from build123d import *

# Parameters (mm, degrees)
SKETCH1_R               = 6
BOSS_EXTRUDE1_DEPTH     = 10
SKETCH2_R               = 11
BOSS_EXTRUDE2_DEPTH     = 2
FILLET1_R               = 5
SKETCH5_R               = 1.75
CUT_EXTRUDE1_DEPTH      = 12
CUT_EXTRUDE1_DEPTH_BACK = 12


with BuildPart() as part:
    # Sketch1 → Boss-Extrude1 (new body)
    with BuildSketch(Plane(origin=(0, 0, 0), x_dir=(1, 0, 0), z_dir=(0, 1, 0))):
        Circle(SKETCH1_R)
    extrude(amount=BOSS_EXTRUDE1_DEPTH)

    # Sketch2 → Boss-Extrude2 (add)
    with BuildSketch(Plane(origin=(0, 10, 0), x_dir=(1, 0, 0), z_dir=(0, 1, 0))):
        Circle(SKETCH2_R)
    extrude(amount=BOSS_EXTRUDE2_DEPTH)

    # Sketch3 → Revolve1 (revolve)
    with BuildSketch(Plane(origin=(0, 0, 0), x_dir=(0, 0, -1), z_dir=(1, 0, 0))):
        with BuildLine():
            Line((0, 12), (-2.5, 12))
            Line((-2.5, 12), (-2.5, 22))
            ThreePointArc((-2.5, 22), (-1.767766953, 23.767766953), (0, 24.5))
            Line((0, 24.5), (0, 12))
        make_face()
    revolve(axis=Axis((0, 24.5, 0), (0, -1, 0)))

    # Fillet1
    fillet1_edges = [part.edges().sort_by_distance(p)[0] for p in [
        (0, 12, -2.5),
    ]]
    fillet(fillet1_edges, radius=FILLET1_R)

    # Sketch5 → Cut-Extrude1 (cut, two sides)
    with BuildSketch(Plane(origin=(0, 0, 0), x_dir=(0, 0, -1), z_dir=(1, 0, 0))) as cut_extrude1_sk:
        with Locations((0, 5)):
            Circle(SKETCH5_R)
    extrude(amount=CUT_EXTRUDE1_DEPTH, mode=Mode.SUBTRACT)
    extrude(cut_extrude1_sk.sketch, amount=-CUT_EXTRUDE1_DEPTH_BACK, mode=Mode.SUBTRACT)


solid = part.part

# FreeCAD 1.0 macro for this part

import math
import FreeCAD as App
import Part
import Sketcher


def edges_at(feature, points):
    """Names of the edges that pass closest to the given points."""
    edges = feature.Shape.Edges
    near = lambda p: min(range(len(edges)), key=lambda i: edges[i].distToShape(Part.Vertex(*p))[0])
    return sorted({f"Edge{near(p) + 1}" for p in points})

doc = App.newDocument("Part")
body = doc.addObject("PartDesign::Body", "Body")

sketch1 = body.newObject("Sketcher::SketchObject", "Sketch")
sketch1.AttachmentSupport = (doc.getObject("XZ_Plane"), [""])
sketch1.MapMode = "FlatFace"
sketch1.addGeometry(Part.Circle(App.Vector(0, 0, 0), App.Vector(0, 0, 1), 6), False)
sketch1.addConstraint([
    Sketcher.Constraint("Coincident", 0, 3, -1, 1),
    Sketcher.Constraint("Diameter", 0, 12.0),
])
pad1 = body.newObject("PartDesign::Pad", "Pad")
pad1.Profile = sketch1
pad1.Length = 10
pad1.Reversed = True

sketch2 = body.newObject("Sketcher::SketchObject", "Sketch001")
sketch2.AttachmentSupport = (doc.getObject("XZ_Plane"), [""])
sketch2.MapMode = "FlatFace"
sketch2.AttachmentOffset = App.Placement(App.Vector(0, 0, -10), App.Rotation())
sketch2.addGeometry(Part.Circle(App.Vector(0, 0, 0), App.Vector(0, 0, 1), 11), False)
sketch2.addConstraint([
    Sketcher.Constraint("Coincident", 0, 3, -1, 1),
    Sketcher.Constraint("Diameter", 0, 22.0),
])
pad2 = body.newObject("PartDesign::Pad", "Pad001")
pad2.Profile = sketch2
pad2.Length = 2
pad2.Reversed = True

sketch3 = body.newObject("Sketcher::SketchObject", "Sketch002")
sketch3.AttachmentSupport = (doc.getObject("YZ_Plane"), [""])
sketch3.MapMode = "FlatFace"
sketch3.addGeometry([
    Part.LineSegment(App.Vector(12, 2.5, 0), App.Vector(12, 0, 0)),
    Part.LineSegment(App.Vector(12, 0, 0), App.Vector(24.5, 0, 0)),
    Part.ArcOfCircle(Part.Circle(App.Vector(22, 0, 0), App.Vector(0, 0, 1), 2.5), math.radians(0), math.radians(90)),
    Part.LineSegment(App.Vector(22, 2.5, 0), App.Vector(12, 2.5, 0)),
], False)
sketch3.addConstraint([
    Sketcher.Constraint("Coincident", 0, 2, 1, 1),
    Sketcher.Constraint("Coincident", 1, 2, 2, 1),
    Sketcher.Constraint("Tangent", 2, 2, 3, 1),
    Sketcher.Constraint("Coincident", 3, 2, 0, 1),
    Sketcher.Constraint("Vertical", 0),
    Sketcher.Constraint("Horizontal", 1),
    Sketcher.Constraint("Horizontal", 3),
    Sketcher.Constraint("PointOnObject", 2, 3, -1),
    Sketcher.Constraint("PointOnObject", 0, 2, -1),
    Sketcher.Constraint("Radius", 2, 2.5),
    Sketcher.Constraint("DistanceX", 3, 2, 3, 1, 10.0),
    Sketcher.Constraint("DistanceX", -1, 1, 2, 3, 22.0),
])
revolution = body.newObject("PartDesign::Revolution", "Revolution")
revolution.Profile = sketch3
revolution.ReferenceAxis = (sketch3, ["H_Axis"])
revolution.Angle = 360
doc.recompute()

fillet = body.newObject("PartDesign::Fillet", "Fillet")
fillet.Base = (revolution, edges_at(revolution, [(0, 12, -2.5)]))
fillet.Radius = 5

sketch4 = body.newObject("Sketcher::SketchObject", "Sketch003")
sketch4.AttachmentSupport = (doc.getObject("YZ_Plane"), [""])
sketch4.MapMode = "FlatFace"
sketch4.addGeometry(Part.Circle(App.Vector(5, 0, 0), App.Vector(0, 0, 1), 1.75), False)
sketch4.addConstraint([
    Sketcher.Constraint("PointOnObject", 0, 3, -1),
    Sketcher.Constraint("Diameter", 0, 3.5),
    Sketcher.Constraint("DistanceX", -1, 1, 0, 3, 5.0),
])
pocket1 = body.newObject("PartDesign::Pocket", "Pocket")
pocket1.Profile = sketch4
pocket1.Type = "ThroughAll"
pocket1.Midplane = True

doc.recompute()
